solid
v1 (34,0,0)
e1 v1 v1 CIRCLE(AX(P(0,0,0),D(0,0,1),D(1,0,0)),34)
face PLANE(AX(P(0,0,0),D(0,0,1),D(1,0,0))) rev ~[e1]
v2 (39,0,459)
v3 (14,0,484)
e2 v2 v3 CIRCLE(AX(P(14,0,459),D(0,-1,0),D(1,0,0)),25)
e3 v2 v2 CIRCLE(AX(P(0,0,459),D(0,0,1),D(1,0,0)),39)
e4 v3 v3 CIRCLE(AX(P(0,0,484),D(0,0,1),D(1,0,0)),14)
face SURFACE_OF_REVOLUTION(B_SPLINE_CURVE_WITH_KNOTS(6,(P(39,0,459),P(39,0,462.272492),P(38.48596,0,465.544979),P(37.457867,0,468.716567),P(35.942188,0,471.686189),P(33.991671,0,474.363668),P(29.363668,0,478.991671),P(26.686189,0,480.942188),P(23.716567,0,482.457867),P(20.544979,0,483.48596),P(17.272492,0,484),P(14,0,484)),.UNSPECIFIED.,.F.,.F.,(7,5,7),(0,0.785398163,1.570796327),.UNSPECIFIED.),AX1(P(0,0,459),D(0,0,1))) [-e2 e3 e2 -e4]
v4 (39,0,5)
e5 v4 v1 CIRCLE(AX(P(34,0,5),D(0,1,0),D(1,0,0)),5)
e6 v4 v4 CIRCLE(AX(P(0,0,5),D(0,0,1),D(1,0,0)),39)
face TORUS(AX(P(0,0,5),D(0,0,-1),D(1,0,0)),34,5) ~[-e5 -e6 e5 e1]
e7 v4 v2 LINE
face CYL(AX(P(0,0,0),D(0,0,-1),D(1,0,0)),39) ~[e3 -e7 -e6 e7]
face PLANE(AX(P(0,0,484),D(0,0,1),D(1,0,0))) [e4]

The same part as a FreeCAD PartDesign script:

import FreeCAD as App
import Part
import Sketcher
from FreeCAD import Vector
Q = App.Units.Quantity


def edges_at(feature, points):
    """Names of the edges that pass closest to the given points."""
    edges = feature.Shape.Edges
    near = lambda p: min(range(len(edges)), key=lambda i: edges[i].distToShape(Part.Vertex(*p))[0])
    return sorted({f"Edge{near(p) + 1}" for p in points})

doc = App.newDocument("Part")
body = doc.addObject("PartDesign::Body", "Body")

sketch1 = body.newObject("Sketcher::SketchObject", "Sketch")
sketch1.AttachmentSupport = (doc.getObject("XY_Plane"), [""])
sketch1.MapMode = "FlatFace"
sketch1.addGeometry(Part.Circle(Vector(0, 0, 0), Vector(0, 0, 1), 39), False)
sketch1.addConstraint([
    Sketcher.Constraint("Coincident", 0, 3, -1, 1),
    Sketcher.Constraint("Diameter", 0, Q("78 mm")),
])
pad1 = body.newObject("PartDesign::Pad", "Pad")
pad1.Profile = sketch1
pad1.Length = 484
doc.recompute()

fillet = body.newObject("PartDesign::Fillet", "Fillet")
fillet.Base = (pad1, edges_at(pad1, [(-39, 0, 484)]))
fillet.Radius = 25
doc.recompute()

fillet2 = body.newObject("PartDesign::Fillet", "Fillet001")
fillet2.Base = (fillet, edges_at(fillet, [(-39, 0, 0)]))
fillet2.Radius = 5

doc.recompute()
